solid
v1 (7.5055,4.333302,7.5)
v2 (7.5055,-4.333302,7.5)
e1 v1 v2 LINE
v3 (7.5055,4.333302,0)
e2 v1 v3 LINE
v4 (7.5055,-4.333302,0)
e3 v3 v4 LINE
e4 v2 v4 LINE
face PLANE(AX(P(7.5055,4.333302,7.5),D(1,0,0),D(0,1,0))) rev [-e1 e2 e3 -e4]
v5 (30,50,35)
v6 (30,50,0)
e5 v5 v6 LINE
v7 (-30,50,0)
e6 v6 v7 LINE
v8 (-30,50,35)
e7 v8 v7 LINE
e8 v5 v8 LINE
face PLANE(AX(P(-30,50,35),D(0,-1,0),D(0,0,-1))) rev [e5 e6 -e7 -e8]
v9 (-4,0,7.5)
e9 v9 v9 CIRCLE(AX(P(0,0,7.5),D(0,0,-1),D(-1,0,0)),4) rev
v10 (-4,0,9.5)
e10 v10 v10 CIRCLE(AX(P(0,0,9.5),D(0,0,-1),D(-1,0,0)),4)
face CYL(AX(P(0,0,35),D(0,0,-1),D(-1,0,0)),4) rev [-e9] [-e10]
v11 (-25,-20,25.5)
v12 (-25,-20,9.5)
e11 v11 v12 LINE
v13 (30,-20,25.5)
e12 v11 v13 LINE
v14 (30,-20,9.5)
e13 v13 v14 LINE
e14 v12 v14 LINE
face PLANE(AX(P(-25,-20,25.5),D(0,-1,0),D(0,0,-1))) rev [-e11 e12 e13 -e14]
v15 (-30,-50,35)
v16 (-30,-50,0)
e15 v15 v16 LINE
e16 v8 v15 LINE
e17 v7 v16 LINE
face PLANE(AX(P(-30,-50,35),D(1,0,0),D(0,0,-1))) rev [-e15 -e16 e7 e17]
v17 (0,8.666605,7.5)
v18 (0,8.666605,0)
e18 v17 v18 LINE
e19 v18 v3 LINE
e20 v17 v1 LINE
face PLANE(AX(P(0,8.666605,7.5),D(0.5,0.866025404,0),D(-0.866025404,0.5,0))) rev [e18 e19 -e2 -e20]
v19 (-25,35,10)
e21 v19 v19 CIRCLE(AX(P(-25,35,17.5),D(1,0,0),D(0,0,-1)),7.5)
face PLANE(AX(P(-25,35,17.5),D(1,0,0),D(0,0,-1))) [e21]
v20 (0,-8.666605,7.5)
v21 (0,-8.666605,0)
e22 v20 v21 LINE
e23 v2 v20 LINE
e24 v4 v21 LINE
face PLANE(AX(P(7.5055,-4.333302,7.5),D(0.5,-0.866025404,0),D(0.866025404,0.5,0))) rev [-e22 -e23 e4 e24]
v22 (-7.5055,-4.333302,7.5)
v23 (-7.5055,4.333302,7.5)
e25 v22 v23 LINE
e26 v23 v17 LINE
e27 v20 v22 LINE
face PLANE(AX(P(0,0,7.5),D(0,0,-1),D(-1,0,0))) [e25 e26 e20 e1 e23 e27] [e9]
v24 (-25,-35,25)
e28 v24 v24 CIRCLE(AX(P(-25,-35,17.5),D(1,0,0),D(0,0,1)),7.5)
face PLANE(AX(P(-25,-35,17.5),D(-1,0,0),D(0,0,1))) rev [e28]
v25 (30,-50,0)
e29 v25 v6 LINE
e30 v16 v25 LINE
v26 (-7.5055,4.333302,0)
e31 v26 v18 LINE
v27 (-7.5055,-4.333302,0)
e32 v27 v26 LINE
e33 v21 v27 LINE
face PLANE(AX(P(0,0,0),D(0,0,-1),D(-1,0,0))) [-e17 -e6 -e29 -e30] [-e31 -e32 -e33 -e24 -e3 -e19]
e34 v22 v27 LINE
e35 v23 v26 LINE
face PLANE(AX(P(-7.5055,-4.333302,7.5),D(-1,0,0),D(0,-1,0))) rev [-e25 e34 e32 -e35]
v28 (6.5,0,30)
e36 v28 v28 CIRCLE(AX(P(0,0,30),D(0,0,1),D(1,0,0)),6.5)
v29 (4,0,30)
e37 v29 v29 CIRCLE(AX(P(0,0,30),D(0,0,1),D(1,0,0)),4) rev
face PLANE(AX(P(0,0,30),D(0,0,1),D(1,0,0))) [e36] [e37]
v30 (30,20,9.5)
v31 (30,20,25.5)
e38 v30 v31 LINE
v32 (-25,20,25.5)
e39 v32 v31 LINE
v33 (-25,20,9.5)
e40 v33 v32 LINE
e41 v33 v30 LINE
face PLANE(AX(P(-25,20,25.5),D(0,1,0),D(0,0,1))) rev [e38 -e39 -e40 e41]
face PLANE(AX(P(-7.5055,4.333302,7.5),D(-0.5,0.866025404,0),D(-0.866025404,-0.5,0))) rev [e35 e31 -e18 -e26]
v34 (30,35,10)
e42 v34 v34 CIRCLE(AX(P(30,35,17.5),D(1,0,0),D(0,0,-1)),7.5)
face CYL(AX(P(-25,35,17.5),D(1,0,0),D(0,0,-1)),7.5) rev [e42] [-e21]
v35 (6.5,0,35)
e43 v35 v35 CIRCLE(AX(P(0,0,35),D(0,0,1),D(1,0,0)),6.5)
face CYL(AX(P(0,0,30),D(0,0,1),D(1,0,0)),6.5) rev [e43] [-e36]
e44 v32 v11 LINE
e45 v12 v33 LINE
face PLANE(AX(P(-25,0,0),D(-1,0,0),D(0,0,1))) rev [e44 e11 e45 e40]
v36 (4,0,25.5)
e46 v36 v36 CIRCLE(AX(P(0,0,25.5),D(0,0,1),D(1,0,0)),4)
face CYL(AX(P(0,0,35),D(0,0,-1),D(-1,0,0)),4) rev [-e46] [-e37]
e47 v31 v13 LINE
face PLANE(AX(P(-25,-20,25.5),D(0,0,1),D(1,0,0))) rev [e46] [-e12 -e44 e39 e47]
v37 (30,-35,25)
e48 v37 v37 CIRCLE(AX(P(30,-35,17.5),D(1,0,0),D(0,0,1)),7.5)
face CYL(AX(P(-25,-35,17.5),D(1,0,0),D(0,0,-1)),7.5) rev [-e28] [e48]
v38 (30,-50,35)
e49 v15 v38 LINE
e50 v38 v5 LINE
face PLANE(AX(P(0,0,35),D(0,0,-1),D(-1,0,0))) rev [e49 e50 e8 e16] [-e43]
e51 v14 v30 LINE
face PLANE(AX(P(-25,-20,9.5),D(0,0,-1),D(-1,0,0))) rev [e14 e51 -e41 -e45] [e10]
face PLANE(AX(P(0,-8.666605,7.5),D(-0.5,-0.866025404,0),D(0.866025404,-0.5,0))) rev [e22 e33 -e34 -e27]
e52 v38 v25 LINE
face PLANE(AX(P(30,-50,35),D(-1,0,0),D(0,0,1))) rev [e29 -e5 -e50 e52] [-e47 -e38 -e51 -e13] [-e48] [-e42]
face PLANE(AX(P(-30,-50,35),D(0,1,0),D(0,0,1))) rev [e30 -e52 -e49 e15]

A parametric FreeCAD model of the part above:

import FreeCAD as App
import Part
import Sketcher
Q = App.Units.Quantity


def add_polygon(sketch, points):
    """Adds a closed chain of lines whose ends are joined by coincident constraints."""
    first, n = sketch.GeometryCount, len(points)
    for a, b in zip(points, points[1:] + points[:1]):
        sketch.addGeometry(Part.LineSegment(App.Vector(*a, 0), App.Vector(*b, 0)), False)
    for i in range(n):
        sketch.addConstraint(Sketcher.Constraint("Coincident", first + i, 2, first + (i + 1) % n, 1))

doc = App.newDocument("Part")
params = doc.addObject("Spreadsheet::Sheet", "Params")
for row, (alias, value) in enumerate([
    ("sketch1_width", "60 mm"),
    ("sketch1_height", "100 mm"),
    ("pad1_length", "35 mm"),
    ("sketch2_diameter", "15 mm"),
    ("sketch2_width", "40 mm"),
    ("sketch2_height", "16 mm"),
    ("pocket1_length", "55 mm"),
    ("sketch3_diameter", "8 mm"),
    ("sketch4_diameter", "13 mm"),
    ("pocket3_length", "5 mm"),
    ("pocket4_length", "7.5 mm"),
], start=1):
    params.set(f"A{row}", alias)
    params.set(f"B{row}", "=" + value)
    params.setAlias(f"B{row}", alias)

body = doc.addObject("PartDesign::Body", "Body")

# Sketch on XY plane
sketch1 = body.newObject("Sketcher::SketchObject", "Sketch")
sketch1.AttachmentSupport = (doc.getObject("XY_Plane"), [""])
sketch1.MapMode = "FlatFace"
add_polygon(sketch1, [(-30, 50), (-30, -50), (30, -50), (30, 50)])  # lines 0-3
sketch1.addConstraint(Sketcher.Constraint("Vertical", 0))
sketch1.addConstraint(Sketcher.Constraint("Horizontal", 1))
sketch1.addConstraint(Sketcher.Constraint("Vertical", 2))
sketch1.addConstraint(Sketcher.Constraint("Horizontal", 3))
sketch1.addConstraint(Sketcher.Constraint("Symmetric", 0, 2, 2, 2, -1, 1))
sketch1.addConstraint(Sketcher.Constraint("DistanceX", 1, 1, 1, 2, 60.0))
sketch1.addConstraint(Sketcher.Constraint("DistanceY", 0, 2, 0, 1, 100.0))
sketch1.setExpression("Constraints[9]", "Params.sketch1_width")
sketch1.setExpression("Constraints[10]", "Params.sketch1_height")
pad1 = body.newObject("PartDesign::Pad", "Pad")
pad1.Profile = sketch1
pad1.setExpression("Length", "Params.pad1_length")

# Sketch on YZ plane
sketch2 = body.newObject("Sketcher::SketchObject", "Sketch001")
sketch2.AttachmentSupport = (doc.getObject("YZ_Plane"), [""])
sketch2.MapMode = "FlatFace"
sketch2.AttachmentOffset = App.Placement(App.Vector(0, 0, 30), App.Rotation())
sketch2.addGeometry(Part.Circle(App.Vector(35, 18, 0), App.Vector(0, 0, 1), 8), False)  # 0
sketch2.addGeometry(Part.Circle(App.Vector(-35, 18, 0), App.Vector(0, 0, 1), 8), False)  # 1
add_polygon(sketch2, [(20, 26), (-20, 26), (-20, 10), (20, 10)])  # lines 2-5
sketch2.addConstraint(Sketcher.Constraint("Horizontal", 2))
sketch2.addConstraint(Sketcher.Constraint("Vertical", 3))
sketch2.addConstraint(Sketcher.Constraint("Horizontal", 4))
sketch2.addConstraint(Sketcher.Constraint("Vertical", 5))
sketch2.addConstraint(Sketcher.Constraint("Equal", 0, 1))
sketch2.addConstraint(Sketcher.Constraint("Symmetric", 0, 3, 1, 3, -2))
sketch2.addConstraint(Sketcher.Constraint("Diameter", 0, 15.0))
sketch2.addConstraint(Sketcher.Constraint("DistanceX", 2, 2, 2, 1, 40.0))
sketch2.addConstraint(Sketcher.Constraint("DistanceY", 3, 2, 3, 1, 16.0))
sketch2.addConstraint(Sketcher.Constraint("DistanceX", -1, 1, 0, 3, 35.0))
sketch2.addConstraint(Sketcher.Constraint("DistanceX", 2, 2, -1, 1, 20.0))
sketch2.addConstraint(Sketcher.Constraint("DistanceY", 1, 3, 2, 2, 8.0))
sketch2.addConstraint(Sketcher.Constraint("DistanceY", -1, 1, 0, 3, 17.5))
sketch2.setExpression("Constraints[10]", "Params.sketch2_diameter")
sketch2.setExpression("Constraints[11]", "Params.sketch2_width")
sketch2.setExpression("Constraints[12]", "Params.sketch2_height")
pocket1 = body.newObject("PartDesign::Pocket", "Pocket")
pocket1.Profile = sketch2
pocket1.setExpression("Length", "Params.pocket1_length")

# Sketch on XY plane
sketch3 = body.newObject("Sketcher::SketchObject", "Sketch002")
sketch3.AttachmentSupport = (doc.getObject("XY_Plane"), [""])
sketch3.MapMode = "FlatFace"
sketch3.addGeometry(Part.Circle(App.Vector(0, 0, 0), App.Vector(0, 0, 1), 4), False)
sketch3.addConstraint(Sketcher.Constraint("Coincident", 0, 3, -1, 1))
sketch3.addConstraint(Sketcher.Constraint("Diameter", 0, 8.0))
sketch3.setExpression("Constraints[1]", "Params.sketch3_diameter")
pocket2 = body.newObject("PartDesign::Pocket", "Pocket001")
pocket2.Profile = sketch3
pocket2.Type = "ThroughAll"
pocket2.Midplane = True

# Sketch on XY plane
sketch4 = body.newObject("Sketcher::SketchObject", "Sketch003")
sketch4.AttachmentSupport = (doc.getObject("XY_Plane"), [""])
sketch4.MapMode = "FlatFace"
sketch4.AttachmentOffset = App.Placement(App.Vector(0, 0, 35), App.Rotation())
sketch4.addGeometry(Part.Circle(App.Vector(0, 0, 0), App.Vector(0, 0, 1), 6), False)
sketch4.addConstraint(Sketcher.Constraint("Coincident", 0, 3, -1, 1))
sketch4.addConstraint(Sketcher.Constraint("Diameter", 0, 13.0))
sketch4.setExpression("Constraints[1]", "Params.sketch4_diameter")
pocket3 = body.newObject("PartDesign::Pocket", "Pocket002")
pocket3.Profile = sketch4
pocket3.setExpression("Length", "Params.pocket3_length")

# Sketch on XY plane
sketch5 = body.newObject("Sketcher::SketchObject", "Sketch004")
sketch5.AttachmentSupport = (doc.getObject("XY_Plane"), [""])
sketch5.MapMode = "FlatFace"
add_polygon(sketch5, [(0, 9), (8, 4), (8, -4), (0, -9), (-8, -4), (-8, 4)])  # lines 0-5
sketch5.addConstraint(Sketcher.Constraint("Vertical", 1))
sketch5.addConstraint(Sketcher.Constraint("Vertical", 4))
sketch5.addConstraint(Sketcher.Constraint("Symmetric", 0, 2, 3, 2, -1, 1))
sketch5.addConstraint(Sketcher.Constraint("Symmetric", 2, 2, 5, 2, -1, 1))
sketch5.addConstraint(Sketcher.Constraint("PointOnObject", 2, 2, -2))
sketch5.addConstraint(Sketcher.Constraint("Parallel", 2, 5))
sketch5.addConstraint(Sketcher.Constraint("Horizontal", 1, 2, 3, 2))
sketch5.addConstraint(Sketcher.Constraint("Angle", 0, Q("-30 deg")))
sketch5.addConstraint(Sketcher.Constraint("DistanceX", 3, 2, 1, 2, 15.011))
sketch5.addConstraint(Sketcher.Constraint("DistanceY", 1, 2, 1, 1, 8.666605))
pocket4 = body.newObject("PartDesign::Pocket", "Pocket003")
pocket4.Profile = sketch5
pocket4.setExpression("Length", "Params.pocket4_length")
pocket4.Reversed = True

doc.recompute()
